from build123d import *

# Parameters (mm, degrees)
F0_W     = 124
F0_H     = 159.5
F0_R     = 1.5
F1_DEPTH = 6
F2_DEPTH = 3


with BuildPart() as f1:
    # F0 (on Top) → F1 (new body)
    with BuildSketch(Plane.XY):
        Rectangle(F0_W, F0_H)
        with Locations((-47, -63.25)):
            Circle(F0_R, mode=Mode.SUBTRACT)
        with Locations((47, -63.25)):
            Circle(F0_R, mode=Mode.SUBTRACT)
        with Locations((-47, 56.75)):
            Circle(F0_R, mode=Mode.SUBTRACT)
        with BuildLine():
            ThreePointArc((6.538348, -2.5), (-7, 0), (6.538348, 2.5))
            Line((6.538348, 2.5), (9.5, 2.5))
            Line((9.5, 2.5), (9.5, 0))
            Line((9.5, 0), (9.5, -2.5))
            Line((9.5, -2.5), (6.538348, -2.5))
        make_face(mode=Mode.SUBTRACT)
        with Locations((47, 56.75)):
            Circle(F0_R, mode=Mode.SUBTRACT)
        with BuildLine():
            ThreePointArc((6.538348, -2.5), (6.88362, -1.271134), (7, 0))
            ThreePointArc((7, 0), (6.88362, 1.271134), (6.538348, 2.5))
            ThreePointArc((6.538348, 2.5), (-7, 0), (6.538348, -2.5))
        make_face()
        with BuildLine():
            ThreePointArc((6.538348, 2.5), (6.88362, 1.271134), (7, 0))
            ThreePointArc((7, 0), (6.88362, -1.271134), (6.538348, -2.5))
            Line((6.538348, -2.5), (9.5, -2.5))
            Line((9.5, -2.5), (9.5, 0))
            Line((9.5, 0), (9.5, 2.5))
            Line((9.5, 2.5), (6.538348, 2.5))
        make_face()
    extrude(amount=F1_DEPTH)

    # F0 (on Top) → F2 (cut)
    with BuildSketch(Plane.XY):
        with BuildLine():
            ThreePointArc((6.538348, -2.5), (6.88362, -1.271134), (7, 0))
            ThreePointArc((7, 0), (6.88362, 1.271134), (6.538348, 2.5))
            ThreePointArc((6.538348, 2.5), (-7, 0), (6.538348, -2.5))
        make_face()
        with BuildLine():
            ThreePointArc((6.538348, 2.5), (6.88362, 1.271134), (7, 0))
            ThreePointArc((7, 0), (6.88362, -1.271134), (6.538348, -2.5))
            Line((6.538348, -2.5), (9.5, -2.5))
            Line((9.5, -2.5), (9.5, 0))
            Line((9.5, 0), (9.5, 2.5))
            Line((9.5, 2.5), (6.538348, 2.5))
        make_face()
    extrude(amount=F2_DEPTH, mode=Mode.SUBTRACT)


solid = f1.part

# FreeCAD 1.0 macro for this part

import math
import FreeCAD as App
import Part
import Sketcher
from FreeCAD import Vector


def add_polygon(sketch, points):
    """Adds a closed chain of lines whose ends are joined by coincident constraints."""
    first, n = sketch.GeometryCount, len(points)
    for a, b in zip(points, points[1:] + points[:1]):
        sketch.addGeometry(Part.LineSegment(App.Vector(*a, 0), App.Vector(*b, 0)), False)
    for i in range(n):
        sketch.addConstraint(Sketcher.Constraint("Coincident", first + i, 2, first + (i + 1) % n, 1))

doc = App.newDocument("Part")
params = doc.addObject("Spreadsheet::Sheet", "Params")
for row, (alias, value) in enumerate([
    ("sketch1_diameter", "3 mm"),
    ("sketch1_width", "124 mm"),
    ("sketch1_height", "159.5 mm"),
    ("pad1_length", "6 mm"),
    ("sketch2_radius", "7 mm"),
    ("sketch2_height", "5 mm"),
    ("pocket1_length", "3 mm"),
], start=1):
    params.set(f"A{row}", alias)
    params.set(f"B{row}", "=" + value)
    params.setAlias(f"B{row}", alias)

body = doc.addObject("PartDesign::Body", "Body")

# Sketch on XY plane
sketch1 = body.newObject("Sketcher::SketchObject", "Sketch")
sketch1.AttachmentSupport = (doc.getObject("XY_Plane"), [""])
sketch1.MapMode = "FlatFace"
add_polygon(sketch1, [(-62, 79.8), (-62, -79.8), (62, -79.8), (62, 79.8)])  # lines 0-3
sketch1.addGeometry(Part.Circle(Vector(-47, -63.2, 0), Vector(0, 0, 1), 1.5), False)  # 4
sketch1.addGeometry(Part.Circle(Vector(47, -63.2, 0), Vector(0, 0, 1), 1.5), False)  # 5
sketch1.addGeometry(Part.Circle(Vector(-47, 56.8, 0), Vector(0, 0, 1), 1.5), False)  # 6
sketch1.addGeometry(Part.Circle(Vector(47, 56.8, 0), Vector(0, 0, 1), 1.5), False)  # 7
sketch1.addConstraint([
    Sketcher.Constraint("Vertical", 0),
    Sketcher.Constraint("Horizontal", 1),
    Sketcher.Constraint("Vertical", 2),
    Sketcher.Constraint("Horizontal", 3),
    Sketcher.Constraint("Equal", 4, 5),
    Sketcher.Constraint("Equal", 5, 6),
    Sketcher.Constraint("Equal", 6, 7),
    Sketcher.Constraint("Symmetric", 0, 2, 2, 2, -1, 1),
    Sketcher.Constraint("Symmetric", 4, 3, 5, 3, -2),
    Sketcher.Constraint("Symmetric", 6, 3, 7, 3, -2),
    Sketcher.Constraint("Vertical", 4, 3, 6, 3),
    Sketcher.Constraint("Diameter", 4, 3.0),
    Sketcher.Constraint("DistanceX", 1, 1, 1, 2, 124.0),
    Sketcher.Constraint("DistanceY", 0, 2, 0, 1, 159.5),
    Sketcher.Constraint("DistanceX", 4, 3, -1, 1, 47.0),
    Sketcher.Constraint("DistanceY", 4, 3, 6, 3, 120.0),
    Sketcher.Constraint("DistanceY", 7, 3, 2, 2, 23.0),
])
sketch1.setExpression("Constraints[15]", "Params.sketch1_diameter")
sketch1.setExpression("Constraints[16]", "Params.sketch1_width")
sketch1.setExpression("Constraints[17]", "Params.sketch1_height")
pad1 = body.newObject("PartDesign::Pad", "Pad")
pad1.Profile = sketch1
pad1.setExpression("Length", "Params.pad1_length")

# Sketch on XY plane
sketch2 = body.newObject("Sketcher::SketchObject", "Sketch001")
sketch2.AttachmentSupport = (doc.getObject("XY_Plane"), [""])
sketch2.MapMode = "FlatFace"
sketch2.addGeometry([
    Part.ArcOfCircle(Part.Circle(Vector(0, 0, 0), Vector(0, 0, 1), 7), math.radians(21), math.radians(339)),
    Part.LineSegment(Vector(6.5, -2.5, 0), Vector(9.5, -2.5, 0)),
    Part.LineSegment(Vector(9.5, -2.5, 0), Vector(9.5, 2.5, 0)),
    Part.LineSegment(Vector(9.5, 2.5, 0), Vector(6.5, 2.5, 0)),
], False)
sketch2.addConstraint([
    Sketcher.Constraint("Coincident", 0, 2, 1, 1),
    Sketcher.Constraint("Coincident", 1, 2, 2, 1),
    Sketcher.Constraint("Coincident", 2, 2, 3, 1),
    Sketcher.Constraint("Coincident", 3, 2, 0, 1),
    Sketcher.Constraint("Horizontal", 1),
    Sketcher.Constraint("Vertical", 2),
    Sketcher.Constraint("Horizontal", 3),
    Sketcher.Constraint("Coincident", 0, 3, -1, 1),
    Sketcher.Constraint("Vertical", 0, 2, 3, 2),
    Sketcher.Constraint("Radius", 0, 7.0),
    Sketcher.Constraint("DistanceY", 2, 1, 2, 2, 5.0),
    Sketcher.Constraint("DistanceX", -1, 1, 1, 2, 9.5),
])
sketch2.setExpression("Constraints[9]", "Params.sketch2_radius")
sketch2.setExpression("Constraints[10]", "Params.sketch2_height")
pocket1 = body.newObject("PartDesign::Pocket", "Pocket")
pocket1.Profile = sketch2
pocket1.setExpression("Length", "Params.pocket1_length")
pocket1.Reversed = True

doc.recompute()
